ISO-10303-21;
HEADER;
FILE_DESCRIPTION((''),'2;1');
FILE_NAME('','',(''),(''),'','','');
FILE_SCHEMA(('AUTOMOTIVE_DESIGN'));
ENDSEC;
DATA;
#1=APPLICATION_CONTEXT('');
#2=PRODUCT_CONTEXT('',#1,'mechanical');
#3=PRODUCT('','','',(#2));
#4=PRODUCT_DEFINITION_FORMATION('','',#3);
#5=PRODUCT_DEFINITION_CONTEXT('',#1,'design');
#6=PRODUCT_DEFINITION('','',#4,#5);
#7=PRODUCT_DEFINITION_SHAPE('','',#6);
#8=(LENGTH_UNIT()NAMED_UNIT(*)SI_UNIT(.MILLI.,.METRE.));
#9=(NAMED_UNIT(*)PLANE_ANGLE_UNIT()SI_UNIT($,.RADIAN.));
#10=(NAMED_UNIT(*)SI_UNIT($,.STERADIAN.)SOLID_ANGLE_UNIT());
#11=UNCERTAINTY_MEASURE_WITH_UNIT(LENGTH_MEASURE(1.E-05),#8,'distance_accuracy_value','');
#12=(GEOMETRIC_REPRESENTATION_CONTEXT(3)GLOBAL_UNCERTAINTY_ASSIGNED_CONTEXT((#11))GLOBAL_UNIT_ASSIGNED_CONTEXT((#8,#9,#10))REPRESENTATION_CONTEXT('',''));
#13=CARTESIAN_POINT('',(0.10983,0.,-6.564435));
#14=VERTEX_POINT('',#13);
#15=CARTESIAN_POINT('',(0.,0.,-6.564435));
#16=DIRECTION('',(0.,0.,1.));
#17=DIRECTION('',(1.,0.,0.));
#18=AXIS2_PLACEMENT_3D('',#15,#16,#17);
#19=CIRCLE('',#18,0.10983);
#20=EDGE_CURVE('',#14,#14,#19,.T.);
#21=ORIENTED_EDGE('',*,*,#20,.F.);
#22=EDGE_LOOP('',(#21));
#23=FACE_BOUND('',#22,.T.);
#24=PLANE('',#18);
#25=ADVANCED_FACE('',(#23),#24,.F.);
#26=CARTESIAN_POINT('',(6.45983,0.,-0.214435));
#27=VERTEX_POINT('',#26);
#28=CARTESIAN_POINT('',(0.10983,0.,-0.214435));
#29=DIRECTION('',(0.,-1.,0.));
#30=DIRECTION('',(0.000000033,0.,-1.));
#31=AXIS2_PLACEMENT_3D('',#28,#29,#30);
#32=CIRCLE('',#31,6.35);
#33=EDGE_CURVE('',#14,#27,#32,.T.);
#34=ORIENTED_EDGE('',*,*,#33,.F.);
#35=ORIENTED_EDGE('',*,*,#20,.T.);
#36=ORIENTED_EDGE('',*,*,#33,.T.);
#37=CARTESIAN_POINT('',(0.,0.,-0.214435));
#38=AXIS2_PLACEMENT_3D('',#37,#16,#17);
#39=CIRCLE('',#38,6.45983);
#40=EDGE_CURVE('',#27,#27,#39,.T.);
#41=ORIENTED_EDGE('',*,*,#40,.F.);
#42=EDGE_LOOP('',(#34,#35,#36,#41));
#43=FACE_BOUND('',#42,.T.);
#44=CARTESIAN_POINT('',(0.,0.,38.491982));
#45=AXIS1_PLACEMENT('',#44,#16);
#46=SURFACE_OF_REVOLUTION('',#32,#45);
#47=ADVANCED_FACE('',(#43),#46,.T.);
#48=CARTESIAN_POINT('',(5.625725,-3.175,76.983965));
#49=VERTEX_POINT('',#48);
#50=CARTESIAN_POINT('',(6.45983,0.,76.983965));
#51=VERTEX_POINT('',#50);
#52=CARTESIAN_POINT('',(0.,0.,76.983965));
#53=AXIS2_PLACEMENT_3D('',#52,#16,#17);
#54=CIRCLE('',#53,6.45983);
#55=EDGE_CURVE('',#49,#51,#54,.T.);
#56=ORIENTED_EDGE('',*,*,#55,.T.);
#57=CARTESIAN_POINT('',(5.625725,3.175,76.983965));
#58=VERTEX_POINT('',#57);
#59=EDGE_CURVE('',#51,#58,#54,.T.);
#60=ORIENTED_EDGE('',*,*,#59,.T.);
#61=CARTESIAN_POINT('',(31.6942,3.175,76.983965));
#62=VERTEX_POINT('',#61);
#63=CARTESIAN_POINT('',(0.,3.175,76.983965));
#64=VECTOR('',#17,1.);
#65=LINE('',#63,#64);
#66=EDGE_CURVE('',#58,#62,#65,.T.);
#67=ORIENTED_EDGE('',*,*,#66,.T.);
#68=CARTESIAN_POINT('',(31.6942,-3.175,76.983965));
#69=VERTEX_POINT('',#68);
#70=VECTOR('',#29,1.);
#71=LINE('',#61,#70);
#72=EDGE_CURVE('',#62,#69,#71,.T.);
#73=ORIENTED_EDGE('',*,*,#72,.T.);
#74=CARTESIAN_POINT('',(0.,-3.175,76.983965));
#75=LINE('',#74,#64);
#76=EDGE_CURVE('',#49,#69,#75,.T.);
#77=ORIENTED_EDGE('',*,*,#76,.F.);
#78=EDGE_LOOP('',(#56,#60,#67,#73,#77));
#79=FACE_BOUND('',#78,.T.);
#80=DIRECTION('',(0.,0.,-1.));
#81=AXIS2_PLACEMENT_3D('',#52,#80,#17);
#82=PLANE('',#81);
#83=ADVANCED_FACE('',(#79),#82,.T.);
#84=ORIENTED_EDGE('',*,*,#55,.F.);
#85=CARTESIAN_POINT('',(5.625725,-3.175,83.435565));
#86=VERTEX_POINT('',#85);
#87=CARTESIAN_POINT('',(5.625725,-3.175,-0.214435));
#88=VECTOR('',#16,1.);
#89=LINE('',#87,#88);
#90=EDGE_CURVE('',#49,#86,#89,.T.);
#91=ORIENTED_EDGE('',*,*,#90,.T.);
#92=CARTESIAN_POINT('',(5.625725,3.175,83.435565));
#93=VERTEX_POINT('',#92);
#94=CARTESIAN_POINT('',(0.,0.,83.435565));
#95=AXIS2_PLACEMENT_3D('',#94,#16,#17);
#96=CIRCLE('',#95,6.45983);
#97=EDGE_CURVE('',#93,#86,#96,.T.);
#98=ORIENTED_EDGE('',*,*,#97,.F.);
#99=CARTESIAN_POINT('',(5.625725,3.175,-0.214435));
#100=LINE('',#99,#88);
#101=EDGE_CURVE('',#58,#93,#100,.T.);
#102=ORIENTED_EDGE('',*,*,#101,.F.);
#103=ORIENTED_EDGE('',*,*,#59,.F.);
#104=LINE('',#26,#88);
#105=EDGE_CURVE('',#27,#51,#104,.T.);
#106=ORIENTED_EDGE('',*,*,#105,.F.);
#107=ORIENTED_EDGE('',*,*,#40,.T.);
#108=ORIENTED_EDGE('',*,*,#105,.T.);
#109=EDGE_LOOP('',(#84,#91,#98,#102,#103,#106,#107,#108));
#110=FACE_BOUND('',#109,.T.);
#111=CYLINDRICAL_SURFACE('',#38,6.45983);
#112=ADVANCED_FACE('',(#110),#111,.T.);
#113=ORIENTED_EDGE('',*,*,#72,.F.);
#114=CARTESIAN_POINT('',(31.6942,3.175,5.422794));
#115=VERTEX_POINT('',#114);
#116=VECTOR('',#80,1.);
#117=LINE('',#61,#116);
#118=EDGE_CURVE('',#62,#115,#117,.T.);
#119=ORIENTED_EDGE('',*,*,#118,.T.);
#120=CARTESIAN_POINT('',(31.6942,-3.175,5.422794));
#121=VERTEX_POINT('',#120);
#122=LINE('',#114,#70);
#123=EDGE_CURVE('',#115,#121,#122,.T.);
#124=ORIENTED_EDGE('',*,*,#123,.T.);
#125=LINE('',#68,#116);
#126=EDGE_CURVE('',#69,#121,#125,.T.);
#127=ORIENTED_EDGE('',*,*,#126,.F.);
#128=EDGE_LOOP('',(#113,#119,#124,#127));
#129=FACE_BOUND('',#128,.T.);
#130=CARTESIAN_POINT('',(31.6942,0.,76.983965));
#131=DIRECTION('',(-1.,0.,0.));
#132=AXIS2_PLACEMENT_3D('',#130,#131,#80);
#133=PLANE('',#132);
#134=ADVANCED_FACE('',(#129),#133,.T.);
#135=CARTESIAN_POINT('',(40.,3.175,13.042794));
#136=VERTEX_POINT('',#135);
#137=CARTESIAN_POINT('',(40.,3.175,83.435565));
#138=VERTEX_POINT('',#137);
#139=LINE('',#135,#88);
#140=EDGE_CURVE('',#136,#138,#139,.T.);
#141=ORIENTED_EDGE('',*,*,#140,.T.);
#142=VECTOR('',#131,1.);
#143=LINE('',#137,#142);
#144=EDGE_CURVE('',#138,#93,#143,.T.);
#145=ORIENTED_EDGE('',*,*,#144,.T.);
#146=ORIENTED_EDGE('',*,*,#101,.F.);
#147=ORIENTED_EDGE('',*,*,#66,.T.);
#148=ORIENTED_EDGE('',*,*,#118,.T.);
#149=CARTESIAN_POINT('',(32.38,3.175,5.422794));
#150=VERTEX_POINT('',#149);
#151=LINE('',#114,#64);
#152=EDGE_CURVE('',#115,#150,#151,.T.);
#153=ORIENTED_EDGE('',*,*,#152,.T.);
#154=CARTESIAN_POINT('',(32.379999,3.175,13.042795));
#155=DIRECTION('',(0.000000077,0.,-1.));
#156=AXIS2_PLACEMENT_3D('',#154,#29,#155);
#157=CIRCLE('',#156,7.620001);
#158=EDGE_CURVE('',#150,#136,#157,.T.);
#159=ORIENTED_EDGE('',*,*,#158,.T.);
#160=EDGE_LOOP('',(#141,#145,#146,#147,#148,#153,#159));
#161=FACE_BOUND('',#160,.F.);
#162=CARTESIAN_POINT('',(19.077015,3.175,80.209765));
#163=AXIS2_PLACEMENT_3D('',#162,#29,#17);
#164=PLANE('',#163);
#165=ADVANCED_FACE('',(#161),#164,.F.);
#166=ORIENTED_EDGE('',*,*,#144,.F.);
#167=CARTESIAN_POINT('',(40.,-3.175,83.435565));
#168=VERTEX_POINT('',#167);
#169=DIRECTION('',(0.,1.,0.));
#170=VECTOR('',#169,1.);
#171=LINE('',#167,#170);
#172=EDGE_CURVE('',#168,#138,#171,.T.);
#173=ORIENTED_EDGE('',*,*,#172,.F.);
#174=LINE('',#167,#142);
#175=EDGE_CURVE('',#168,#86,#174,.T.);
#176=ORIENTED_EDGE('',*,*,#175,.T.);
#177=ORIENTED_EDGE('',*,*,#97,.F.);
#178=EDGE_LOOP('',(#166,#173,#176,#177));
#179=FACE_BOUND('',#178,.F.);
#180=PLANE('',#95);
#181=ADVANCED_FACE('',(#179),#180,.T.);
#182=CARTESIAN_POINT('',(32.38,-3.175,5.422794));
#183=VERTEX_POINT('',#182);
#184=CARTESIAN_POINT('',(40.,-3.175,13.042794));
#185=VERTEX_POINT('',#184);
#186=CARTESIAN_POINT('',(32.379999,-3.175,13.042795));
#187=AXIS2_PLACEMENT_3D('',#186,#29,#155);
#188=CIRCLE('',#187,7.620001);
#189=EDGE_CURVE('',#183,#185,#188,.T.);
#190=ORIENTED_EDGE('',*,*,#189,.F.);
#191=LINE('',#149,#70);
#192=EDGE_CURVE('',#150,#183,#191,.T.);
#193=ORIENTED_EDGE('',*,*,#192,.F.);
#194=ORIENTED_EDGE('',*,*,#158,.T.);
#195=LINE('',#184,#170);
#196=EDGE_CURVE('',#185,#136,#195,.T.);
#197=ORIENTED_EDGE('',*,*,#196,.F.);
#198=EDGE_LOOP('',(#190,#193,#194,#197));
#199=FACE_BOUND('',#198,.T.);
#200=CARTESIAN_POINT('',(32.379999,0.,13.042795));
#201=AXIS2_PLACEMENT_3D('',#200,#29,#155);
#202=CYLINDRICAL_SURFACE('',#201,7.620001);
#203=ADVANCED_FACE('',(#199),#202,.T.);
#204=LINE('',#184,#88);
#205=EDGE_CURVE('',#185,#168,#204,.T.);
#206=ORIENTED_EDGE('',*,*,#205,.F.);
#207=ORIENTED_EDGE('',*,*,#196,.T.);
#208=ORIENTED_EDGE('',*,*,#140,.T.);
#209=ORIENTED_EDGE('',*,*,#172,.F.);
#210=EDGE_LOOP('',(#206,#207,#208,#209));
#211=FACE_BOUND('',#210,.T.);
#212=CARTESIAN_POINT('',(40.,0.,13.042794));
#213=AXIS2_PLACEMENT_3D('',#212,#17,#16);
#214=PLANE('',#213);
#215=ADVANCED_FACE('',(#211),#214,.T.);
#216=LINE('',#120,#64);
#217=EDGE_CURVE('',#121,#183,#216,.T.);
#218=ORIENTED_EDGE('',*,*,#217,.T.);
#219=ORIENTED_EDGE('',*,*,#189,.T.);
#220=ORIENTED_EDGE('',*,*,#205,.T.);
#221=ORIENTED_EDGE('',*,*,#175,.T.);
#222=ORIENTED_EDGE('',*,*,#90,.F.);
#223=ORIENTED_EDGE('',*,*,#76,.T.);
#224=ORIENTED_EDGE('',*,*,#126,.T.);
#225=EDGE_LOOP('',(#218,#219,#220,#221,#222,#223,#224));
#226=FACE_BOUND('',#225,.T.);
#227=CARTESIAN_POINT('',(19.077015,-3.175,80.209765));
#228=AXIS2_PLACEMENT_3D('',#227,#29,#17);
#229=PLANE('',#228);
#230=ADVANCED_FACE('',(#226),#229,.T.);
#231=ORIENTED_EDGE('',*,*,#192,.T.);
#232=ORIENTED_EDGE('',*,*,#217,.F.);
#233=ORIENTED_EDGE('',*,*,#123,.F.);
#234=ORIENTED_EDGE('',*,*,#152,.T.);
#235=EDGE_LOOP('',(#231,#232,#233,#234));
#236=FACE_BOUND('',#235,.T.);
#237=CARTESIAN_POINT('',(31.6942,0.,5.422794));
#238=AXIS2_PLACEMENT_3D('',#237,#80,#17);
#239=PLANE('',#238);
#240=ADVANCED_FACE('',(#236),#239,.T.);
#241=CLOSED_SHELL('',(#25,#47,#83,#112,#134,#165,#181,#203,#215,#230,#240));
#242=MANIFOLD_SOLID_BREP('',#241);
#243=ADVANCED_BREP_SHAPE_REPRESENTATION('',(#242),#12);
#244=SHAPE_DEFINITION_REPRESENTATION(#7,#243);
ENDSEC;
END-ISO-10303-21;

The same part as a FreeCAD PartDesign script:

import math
import FreeCAD as App
import Part
import Sketcher

V = App.Vector
Q = App.Units.Quantity

doc = App.newDocument("Part")
body = doc.addObject("PartDesign::Body", "Body")

sketch1 = body.newObject("Sketcher::SketchObject", "Sketch")
sketch1.AttachmentSupport = (doc.getObject("XZ_Plane"), [""])
sketch1.MapMode = "FlatFace"
sketch1.addGeometry([
    Part.LineSegment(V(0, -6.564435, 0), V(0.10983, -6.564435, 0)),
    Part.ArcOfCircle(Part.Circle(V(0.10983, -0.214435, 0), V(0, 0, 1), 6.35), math.radians(-89.999998), math.radians(-0.000002)),
    Part.LineSegment(V(6.45983, -0.214435, 0), V(6.45983, 83.435565, 0)),
    Part.LineSegment(V(6.45983, 83.435565, 0), V(0, 83.435565, 0)),
    Part.LineSegment(V(0, 83.435565, 0), V(0, -6.564435, 0)),
], False)
sketch1.addConstraint([
    Sketcher.Constraint("Tangent", 0, 2, 1, 1),
    Sketcher.Constraint("Tangent", 1, 2, 2, 1),
    Sketcher.Constraint("Coincident", 2, 2, 3, 1),
    Sketcher.Constraint("Coincident", 3, 2, 4, 1),
    Sketcher.Constraint("Coincident", 4, 2, 0, 1),
    Sketcher.Constraint("Horizontal", 0),
    Sketcher.Constraint("Vertical", 2),
    Sketcher.Constraint("Horizontal", 3),
    Sketcher.Constraint("Vertical", 4),
    Sketcher.Constraint("PointOnObject", 3, 2, -2),
    Sketcher.Constraint("Radius", 1, Q("0.25 in")),
    Sketcher.Constraint("DistanceY", 2, 1, 2, 2, 83.65),
    Sketcher.Constraint("DistanceX", 0, 1, 0, 2, 0.10983),
    Sketcher.Constraint("DistanceY", 1, 3, -1, 1, 0.214435),
])
revolution = body.newObject("PartDesign::Revolution", "Revolution")
revolution.Profile = sketch1
revolution.ReferenceAxis = (sketch1, ["V_Axis"])
revolution.Angle = 360

sketch2 = body.newObject("Sketcher::SketchObject", "Sketch001")
sketch2.AttachmentSupport = (doc.getObject("XZ_Plane"), [""])
sketch2.MapMode = "FlatFace"
sketch2.addGeometry([
    Part.LineSegment(V(0, 83.435565, 0), V(0, 76.983965, 0)),
    Part.LineSegment(V(0, 76.983965, 0), V(31.6942, 76.983965, 0)),
    Part.LineSegment(V(31.6942, 76.983965, 0), V(31.6942, 5.422794, 0)),
    Part.LineSegment(V(31.6942, 5.422794, 0), V(32.38, 5.422794, 0)),
    Part.ArcOfCircle(Part.Circle(V(32.379999, 13.042795, 0), V(0, 0, 1), 7.620001), math.radians(-89.999996), math.radians(-0.000004)),
    Part.LineSegment(V(40, 13.042794, 0), V(40, 83.435565, 0)),
    Part.LineSegment(V(40, 83.435565, 0), V(0, 83.435565, 0)),
], False)
sketch2.addConstraint([
    Sketcher.Constraint("Coincident", 0, 2, 1, 1),
    Sketcher.Constraint("Coincident", 1, 2, 2, 1),
    Sketcher.Constraint("Coincident", 2, 2, 3, 1),
    Sketcher.Constraint("Tangent", 3, 2, 4, 1),
    Sketcher.Constraint("Tangent", 4, 2, 5, 1),
    Sketcher.Constraint("Coincident", 5, 2, 6, 1),
    Sketcher.Constraint("Coincident", 6, 2, 0, 1),
    Sketcher.Constraint("Vertical", 0),
    Sketcher.Constraint("Horizontal", 1),
    Sketcher.Constraint("Vertical", 2),
    Sketcher.Constraint("Horizontal", 3),
    Sketcher.Constraint("Vertical", 5),
    Sketcher.Constraint("Horizontal", 6),
    Sketcher.Constraint("PointOnObject", 0, 2, -2),
    Sketcher.Constraint("Radius", 4, Q("0.3 in")),
    Sketcher.Constraint("DistanceX", 3, 1, 3, 2, Q("0.027 in")),
    Sketcher.Constraint("DistanceY", 0, 2, 0, 1, Q("0.254 in")),
    Sketcher.Constraint("DistanceX", 1, 1, 1, 2, 31.6942),
    Sketcher.Constraint("DistanceY", 2, 2, 2, 1, 71.561171),
    Sketcher.Constraint("DistanceY", -1, 1, 4, 3, 13.042795),
])
pad1 = body.newObject("PartDesign::Pad", "Pad")
pad1.Profile = sketch2
pad1.Length = Q("0.25 in")
pad1.Midplane = True

doc.recompute()
